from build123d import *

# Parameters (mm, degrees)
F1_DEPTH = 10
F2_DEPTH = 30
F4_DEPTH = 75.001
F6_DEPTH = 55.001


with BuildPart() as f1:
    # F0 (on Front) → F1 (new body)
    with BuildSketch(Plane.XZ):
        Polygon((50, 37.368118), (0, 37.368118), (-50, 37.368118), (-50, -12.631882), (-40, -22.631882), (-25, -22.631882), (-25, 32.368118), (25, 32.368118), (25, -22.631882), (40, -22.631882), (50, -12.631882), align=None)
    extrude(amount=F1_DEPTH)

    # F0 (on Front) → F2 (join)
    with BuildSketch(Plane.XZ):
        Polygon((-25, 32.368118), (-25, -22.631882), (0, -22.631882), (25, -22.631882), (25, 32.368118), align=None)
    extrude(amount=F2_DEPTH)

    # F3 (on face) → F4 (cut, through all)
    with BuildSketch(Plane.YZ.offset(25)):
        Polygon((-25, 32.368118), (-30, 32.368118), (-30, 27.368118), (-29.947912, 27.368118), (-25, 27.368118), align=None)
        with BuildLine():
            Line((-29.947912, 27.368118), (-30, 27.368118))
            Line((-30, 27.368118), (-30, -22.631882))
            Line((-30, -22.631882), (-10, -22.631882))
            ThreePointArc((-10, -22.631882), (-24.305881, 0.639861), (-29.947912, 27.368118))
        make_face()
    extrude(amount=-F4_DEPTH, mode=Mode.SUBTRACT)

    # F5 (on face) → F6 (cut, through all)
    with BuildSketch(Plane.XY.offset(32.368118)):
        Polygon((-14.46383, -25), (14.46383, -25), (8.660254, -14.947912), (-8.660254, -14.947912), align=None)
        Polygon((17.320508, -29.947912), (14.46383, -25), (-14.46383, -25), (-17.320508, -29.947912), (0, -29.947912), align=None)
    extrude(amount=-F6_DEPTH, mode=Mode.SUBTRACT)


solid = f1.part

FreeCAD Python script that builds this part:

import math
import FreeCAD as App
import Part
import Sketcher

V = App.Vector
Q = App.Units.Quantity

doc = App.newDocument("Part")
body = doc.addObject("PartDesign::Body", "Body")

# Sketch on XZ plane
sketch1 = body.newObject("Sketcher::SketchObject", "Sketch")
sketch1.AttachmentSupport = (doc.getObject("XZ_Plane"), [""])
sketch1.MapMode = "FlatFace"
sketch1.addGeometry([
    Part.LineSegment(V(50, 37, 0), V(-50, 37, 0)),  # 0
    Part.LineSegment(V(-50, 37, 0), V(-50, -13, 0)),  # 1
    Part.LineSegment(V(-50, -13, 0), V(-40, -23, 0)),  # 2
    Part.LineSegment(V(-40, -23, 0), V(-25, -23, 0)),  # 3
    Part.LineSegment(V(-25, -23, 0), V(-25, 32, 0)),  # 4
    Part.LineSegment(V(-25, 32, 0), V(25, 32, 0)),  # 5
    Part.LineSegment(V(25, 32, 0), V(25, -23, 0)),  # 6
    Part.LineSegment(V(25, -23, 0), V(40, -23, 0)),  # 7
    Part.LineSegment(V(40, -23, 0), V(50, -13, 0)),  # 8
    Part.LineSegment(V(50, -13, 0), V(50, 37, 0)),  # 9
], False)
sketch1.addConstraint([
    Sketcher.Constraint("Coincident", 0, 2, 1, 1),
    Sketcher.Constraint("Coincident", 1, 2, 2, 1),
    Sketcher.Constraint("Coincident", 2, 2, 3, 1),
    Sketcher.Constraint("Coincident", 3, 2, 4, 1),
    Sketcher.Constraint("Coincident", 4, 2, 5, 1),
    Sketcher.Constraint("Coincident", 5, 2, 6, 1),
    Sketcher.Constraint("Coincident", 6, 2, 7, 1),
    Sketcher.Constraint("Coincident", 7, 2, 8, 1),
    Sketcher.Constraint("Coincident", 8, 2, 9, 1),
    Sketcher.Constraint("Coincident", 9, 2, 0, 1),
    Sketcher.Constraint("Horizontal", 0),
    Sketcher.Constraint("Vertical", 1),
    Sketcher.Constraint("Horizontal", 3),
    Sketcher.Constraint("Vertical", 4),
    Sketcher.Constraint("Horizontal", 5),
    Sketcher.Constraint("Vertical", 6),
    Sketcher.Constraint("Horizontal", 7),
    Sketcher.Constraint("Vertical", 9),
    Sketcher.Constraint("Symmetric", 3, 2, 6, 2, -2),
    Sketcher.Constraint("Symmetric", 1, 2, 8, 2, -2),
    Sketcher.Constraint("Perpendicular", 2, 8),
    Sketcher.Constraint("Equal", 3, 7),
    Sketcher.Constraint("Equal", 5, 1),
    Sketcher.Constraint("DistanceX", 0, 2, 0, 1, Q("100 mm")),
    Sketcher.Constraint("DistanceX", 3, 1, 3, 2, Q("15 mm")),
    Sketcher.Constraint("DistanceX", 5, 1, 5, 2, Q("50 mm")),
    Sketcher.Constraint("DistanceY", 4, 1, 4, 2, Q("55 mm")),
    Sketcher.Constraint("DistanceY", -1, 1, 0, 2, Q("37.368118 mm")),
])
pad1 = body.newObject("PartDesign::Pad", "Pad")
pad1.Profile = sketch1
pad1.Length = 10

# Sketch on XZ plane
sketch2 = body.newObject("Sketcher::SketchObject", "Sketch001")
sketch2.AttachmentSupport = (doc.getObject("XZ_Plane"), [""])
sketch2.MapMode = "FlatFace"
sketch2.addGeometry([
    Part.LineSegment(V(-25, 32, 0), V(-25, -23, 0)),
    Part.LineSegment(V(-25, -23, 0), V(25, -23, 0)),
    Part.LineSegment(V(25, -23, 0), V(25, 32, 0)),
    Part.LineSegment(V(25, 32, 0), V(-25, 32, 0)),
], False)
sketch2.addConstraint([
    Sketcher.Constraint("Coincident", 0, 2, 1, 1),
    Sketcher.Constraint("Coincident", 1, 2, 2, 1),
    Sketcher.Constraint("Coincident", 2, 2, 3, 1),
    Sketcher.Constraint("Coincident", 3, 2, 0, 1),
    Sketcher.Constraint("Vertical", 0),
    Sketcher.Constraint("Horizontal", 1),
    Sketcher.Constraint("Vertical", 2),
    Sketcher.Constraint("Horizontal", 3),
    Sketcher.Constraint("DistanceX", 1, 1, 1, 2, Q("50 mm")),
    Sketcher.Constraint("DistanceY", 0, 2, 0, 1, Q("55 mm")),
    Sketcher.Constraint("DistanceX", 0, 2, -1, 1, Q("25 mm")),
    Sketcher.Constraint("DistanceY", -1, 1, 2, 2, Q("32.368118 mm")),
])
pad2 = body.newObject("PartDesign::Pad", "Pad001")
pad2.Profile = sketch2
pad2.Length = 30

# Sketch on YZ plane
sketch3 = body.newObject("Sketcher::SketchObject", "Sketch002")
sketch3.AttachmentSupport = (doc.getObject("YZ_Plane"), [""])
sketch3.MapMode = "FlatFace"
sketch3.AttachmentOffset = App.Placement(V(0, 0, 25), App.Rotation())
sketch3.addGeometry([
    Part.LineSegment(V(-25, 32.4, 0), V(-30, 32.4, 0)),  # 0
    Part.LineSegment(V(-30, 32.4, 0), V(-30, -22.6, 0)),  # 1
    Part.LineSegment(V(-30, -22.6, 0), V(-10, -22.6, 0)),  # 2
    Part.ArcOfCircle(Part.Circle(V(50, 30.3, 0), V(0, 0, 1), 80), math.radians(-178), math.radians(-139)),  # 3
    Part.LineSegment(V(-29.9, 27.4, 0), V(-25, 27.4, 0)),  # 4
    Part.LineSegment(V(-25, 27.4, 0), V(-25, 32.4, 0)),  # 5
], False)
sketch3.addConstraint([
    Sketcher.Constraint("Coincident", 0, 2, 1, 1),
    Sketcher.Constraint("Coincident", 1, 2, 2, 1),
    Sketcher.Constraint("Coincident", 2, 2, 3, 2),
    Sketcher.Constraint("Coincident", 3, 1, 4, 1),
    Sketcher.Constraint("Coincident", 4, 2, 5, 1),
    Sketcher.Constraint("Coincident", 5, 2, 0, 1),
    Sketcher.Constraint("Horizontal", 0),
    Sketcher.Constraint("Vertical", 1),
    Sketcher.Constraint("Horizontal", 2),
    Sketcher.Constraint("Horizontal", 4),
    Sketcher.Constraint("Vertical", 5),
    Sketcher.Constraint("Equal", 0, 5),
    Sketcher.Constraint("DistanceX", 0, 2, 0, 1, Q("5 mm")),
    Sketcher.Constraint("DistanceX", 2, 1, 2, 2, Q("20 mm")),
    Sketcher.Constraint("DistanceY", 1, 2, 1, 1, Q("55 mm")),
    Sketcher.Constraint("DistanceX", 0, 2, -1, 1, Q("30 mm")),
    Sketcher.Constraint("Radius", 3, Q("79.999995 mm")),
    Sketcher.Constraint("DistanceX", 4, 1, 4, 2, Q("4.947912 mm")),
    Sketcher.Constraint("DistanceY", -1, 1, 3, 3, Q("30.28437 mm")),
])
pocket1 = body.newObject("PartDesign::Pocket", "Pocket")
pocket1.Profile = sketch3
pocket1.Type = "ThroughAll"

# Sketch on XY plane
sketch4 = body.newObject("Sketcher::SketchObject", "Sketch003")
sketch4.AttachmentSupport = (doc.getObject("XY_Plane"), [""])
sketch4.MapMode = "FlatFace"
sketch4.AttachmentOffset = App.Placement(V(0, 0, 32.368118), App.Rotation())
sketch4.addGeometry([
    Part.LineSegment(V(14, -25, 0), V(9, -15, 0)),  # 0
    Part.LineSegment(V(9, -15, 0), V(-9, -15, 0)),  # 1
    Part.LineSegment(V(-9, -15, 0), V(-14, -25, 0)),  # 2
    Part.LineSegment(V(-14, -25, 0), V(-17, -30, 0)),  # 3
    Part.LineSegment(V(-17, -30, 0), V(17, -30, 0)),  # 4
    Part.LineSegment(V(17, -30, 0), V(14, -25, 0)),  # 5
], False)
sketch4.addConstraint([
    Sketcher.Constraint("Coincident", 0, 2, 1, 1),
    Sketcher.Constraint("Coincident", 1, 2, 2, 1),
    Sketcher.Constraint("Coincident", 2, 2, 3, 1),
    Sketcher.Constraint("Coincident", 3, 2, 4, 1),
    Sketcher.Constraint("Coincident", 4, 2, 5, 1),
    Sketcher.Constraint("Coincident", 5, 2, 0, 1),
    Sketcher.Constraint("Horizontal", 1),
    Sketcher.Constraint("Horizontal", 4),
    Sketcher.Constraint("Symmetric", 2, 2, 5, 2, -2),
    Sketcher.Constraint("Parallel", 2, 3),
    Sketcher.Constraint("Parallel", 0, 5),
    Sketcher.Constraint("Equal", 0, 2),
    Sketcher.Constraint("Angle", 0, Q("120.000001 deg")),
    Sketcher.Constraint("DistanceY", 2, 2, -1, 1, Q("25 mm")),
    Sketcher.Constraint("DistanceY", 3, 2, 1, 2, Q("15 mm")),
    Sketcher.Constraint("DistanceX", 1, 2, 1, 1, Q("17.320508 mm")),
    Sketcher.Constraint("Distance", 0, Q("11.607152 mm")),
])
pocket2 = body.newObject("PartDesign::Pocket", "Pocket001")
pocket2.Profile = sketch4
pocket2.Type = "ThroughAll"

doc.recompute()
